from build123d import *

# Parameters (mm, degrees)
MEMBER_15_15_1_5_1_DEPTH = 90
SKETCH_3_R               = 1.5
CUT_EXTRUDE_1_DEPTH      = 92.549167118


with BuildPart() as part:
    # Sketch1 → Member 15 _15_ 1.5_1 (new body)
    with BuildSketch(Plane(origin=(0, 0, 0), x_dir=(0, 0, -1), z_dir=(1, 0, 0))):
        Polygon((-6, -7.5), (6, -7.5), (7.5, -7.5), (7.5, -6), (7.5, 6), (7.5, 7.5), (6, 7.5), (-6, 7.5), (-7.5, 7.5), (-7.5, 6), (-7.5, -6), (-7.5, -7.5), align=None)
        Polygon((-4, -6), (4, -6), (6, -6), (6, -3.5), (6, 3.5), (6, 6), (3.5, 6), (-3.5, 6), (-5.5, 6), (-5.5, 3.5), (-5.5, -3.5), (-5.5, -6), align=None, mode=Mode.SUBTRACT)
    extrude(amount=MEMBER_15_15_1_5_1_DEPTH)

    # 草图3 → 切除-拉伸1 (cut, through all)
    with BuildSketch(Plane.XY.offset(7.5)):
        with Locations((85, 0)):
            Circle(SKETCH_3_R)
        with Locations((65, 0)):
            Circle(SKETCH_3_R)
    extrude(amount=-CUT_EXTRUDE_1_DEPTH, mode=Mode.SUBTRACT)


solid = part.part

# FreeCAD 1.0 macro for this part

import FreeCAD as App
import Part
import Sketcher
from FreeCAD import Vector
Q = App.Units.Quantity


def add_polygon(sketch, points):
    """Adds a closed chain of lines whose ends are joined by coincident constraints."""
    first, n = sketch.GeometryCount, len(points)
    for a, b in zip(points, points[1:] + points[:1]):
        sketch.addGeometry(Part.LineSegment(App.Vector(*a, 0), App.Vector(*b, 0)), False)
    for i in range(n):
        sketch.addConstraint(Sketcher.Constraint("Coincident", first + i, 2, first + (i + 1) % n, 1))

doc = App.newDocument("Part")
params = doc.addObject("Spreadsheet::Sheet", "Params")
for row, (alias, value) in enumerate([
    ("sketch1_width", "15 mm"),
    ("sketch1_width2", "12 mm"),
    ("sketch1_height", "11.5 mm"),
    ("pad1_length", "90 mm"),
    ("sketch2_diameter", "3 mm"),
], start=1):
    params.set(f"A{row}", alias)
    params.set(f"B{row}", "=" + value)
    params.setAlias(f"B{row}", alias)

body = doc.addObject("PartDesign::Body", "Body")

sketch1 = body.newObject("Sketcher::SketchObject", "Sketch")
sketch1.AttachmentSupport = (doc.getObject("YZ_Plane"), [""])
sketch1.MapMode = "FlatFace"
add_polygon(sketch1, [(-8, -8), (8, -8), (8, 8), (-8, 8)])
add_polygon(sketch1, [(-6, -6), (-6, 6), (6, 6), (6, -6)])
sketch1.addConstraint([
    Sketcher.Constraint("Horizontal", 0),
    Sketcher.Constraint("Vertical", 1),
    Sketcher.Constraint("Horizontal", 2),
    Sketcher.Constraint("Vertical", 3),
    Sketcher.Constraint("Vertical", 4),
    Sketcher.Constraint("Horizontal", 5),
    Sketcher.Constraint("Vertical", 6),
    Sketcher.Constraint("Horizontal", 7),
    Sketcher.Constraint("Symmetric", 0, 2, 2, 2, -1, 1),
    Sketcher.Constraint("Equal", 2, 1),
    Sketcher.Constraint("DistanceX", 0, 1, 0, 2, Q("15 mm")),
    Sketcher.Constraint("DistanceX", 5, 1, 5, 2, Q("12 mm")),
    Sketcher.Constraint("DistanceY", 4, 1, 4, 2, Q("11.5 mm")),
    Sketcher.Constraint("DistanceX", 4, 2, -1, 1, Q("6 mm")),
    Sketcher.Constraint("DistanceY", 6, 2, -1, 1, Q("6 mm")),
])
sketch1.setExpression("Constraints[18]", "Params.sketch1_width")
sketch1.setExpression("Constraints[19]", "Params.sketch1_width2")
sketch1.setExpression("Constraints[20]", "Params.sketch1_height")
pad1 = body.newObject("PartDesign::Pad", "Pad")
pad1.Profile = sketch1
pad1.setExpression("Length", "Params.pad1_length")

sketch2 = body.newObject("Sketcher::SketchObject", "Sketch001")
sketch2.AttachmentSupport = (doc.getObject("XY_Plane"), [""])
sketch2.MapMode = "FlatFace"
sketch2.AttachmentOffset = App.Placement(Vector(0, 0, 7.5), App.Rotation())
sketch2.addGeometry([
    Part.Circle(Vector(85, 0, 0), Vector(0, 0, 1), 1.5),
    Part.Circle(Vector(65, 0, 0), Vector(0, 0, 1), 1.5),
], False)
sketch2.addConstraint([
    Sketcher.Constraint("Equal", 0, 1),
    Sketcher.Constraint("PointOnObject", 0, 3, -1),
    Sketcher.Constraint("PointOnObject", 1, 3, -1),
    Sketcher.Constraint("Diameter", 0, Q("3 mm")),
    Sketcher.Constraint("DistanceX", -1, 1, 0, 3, Q("85 mm")),
    Sketcher.Constraint("DistanceX", -1, 1, 1, 3, Q("65 mm")),
])
sketch2.setExpression("Constraints[3]", "Params.sketch2_diameter")
pocket1 = body.newObject("PartDesign::Pocket", "Pocket")
pocket1.Profile = sketch2
pocket1.Type = "ThroughAll"

doc.recompute()
